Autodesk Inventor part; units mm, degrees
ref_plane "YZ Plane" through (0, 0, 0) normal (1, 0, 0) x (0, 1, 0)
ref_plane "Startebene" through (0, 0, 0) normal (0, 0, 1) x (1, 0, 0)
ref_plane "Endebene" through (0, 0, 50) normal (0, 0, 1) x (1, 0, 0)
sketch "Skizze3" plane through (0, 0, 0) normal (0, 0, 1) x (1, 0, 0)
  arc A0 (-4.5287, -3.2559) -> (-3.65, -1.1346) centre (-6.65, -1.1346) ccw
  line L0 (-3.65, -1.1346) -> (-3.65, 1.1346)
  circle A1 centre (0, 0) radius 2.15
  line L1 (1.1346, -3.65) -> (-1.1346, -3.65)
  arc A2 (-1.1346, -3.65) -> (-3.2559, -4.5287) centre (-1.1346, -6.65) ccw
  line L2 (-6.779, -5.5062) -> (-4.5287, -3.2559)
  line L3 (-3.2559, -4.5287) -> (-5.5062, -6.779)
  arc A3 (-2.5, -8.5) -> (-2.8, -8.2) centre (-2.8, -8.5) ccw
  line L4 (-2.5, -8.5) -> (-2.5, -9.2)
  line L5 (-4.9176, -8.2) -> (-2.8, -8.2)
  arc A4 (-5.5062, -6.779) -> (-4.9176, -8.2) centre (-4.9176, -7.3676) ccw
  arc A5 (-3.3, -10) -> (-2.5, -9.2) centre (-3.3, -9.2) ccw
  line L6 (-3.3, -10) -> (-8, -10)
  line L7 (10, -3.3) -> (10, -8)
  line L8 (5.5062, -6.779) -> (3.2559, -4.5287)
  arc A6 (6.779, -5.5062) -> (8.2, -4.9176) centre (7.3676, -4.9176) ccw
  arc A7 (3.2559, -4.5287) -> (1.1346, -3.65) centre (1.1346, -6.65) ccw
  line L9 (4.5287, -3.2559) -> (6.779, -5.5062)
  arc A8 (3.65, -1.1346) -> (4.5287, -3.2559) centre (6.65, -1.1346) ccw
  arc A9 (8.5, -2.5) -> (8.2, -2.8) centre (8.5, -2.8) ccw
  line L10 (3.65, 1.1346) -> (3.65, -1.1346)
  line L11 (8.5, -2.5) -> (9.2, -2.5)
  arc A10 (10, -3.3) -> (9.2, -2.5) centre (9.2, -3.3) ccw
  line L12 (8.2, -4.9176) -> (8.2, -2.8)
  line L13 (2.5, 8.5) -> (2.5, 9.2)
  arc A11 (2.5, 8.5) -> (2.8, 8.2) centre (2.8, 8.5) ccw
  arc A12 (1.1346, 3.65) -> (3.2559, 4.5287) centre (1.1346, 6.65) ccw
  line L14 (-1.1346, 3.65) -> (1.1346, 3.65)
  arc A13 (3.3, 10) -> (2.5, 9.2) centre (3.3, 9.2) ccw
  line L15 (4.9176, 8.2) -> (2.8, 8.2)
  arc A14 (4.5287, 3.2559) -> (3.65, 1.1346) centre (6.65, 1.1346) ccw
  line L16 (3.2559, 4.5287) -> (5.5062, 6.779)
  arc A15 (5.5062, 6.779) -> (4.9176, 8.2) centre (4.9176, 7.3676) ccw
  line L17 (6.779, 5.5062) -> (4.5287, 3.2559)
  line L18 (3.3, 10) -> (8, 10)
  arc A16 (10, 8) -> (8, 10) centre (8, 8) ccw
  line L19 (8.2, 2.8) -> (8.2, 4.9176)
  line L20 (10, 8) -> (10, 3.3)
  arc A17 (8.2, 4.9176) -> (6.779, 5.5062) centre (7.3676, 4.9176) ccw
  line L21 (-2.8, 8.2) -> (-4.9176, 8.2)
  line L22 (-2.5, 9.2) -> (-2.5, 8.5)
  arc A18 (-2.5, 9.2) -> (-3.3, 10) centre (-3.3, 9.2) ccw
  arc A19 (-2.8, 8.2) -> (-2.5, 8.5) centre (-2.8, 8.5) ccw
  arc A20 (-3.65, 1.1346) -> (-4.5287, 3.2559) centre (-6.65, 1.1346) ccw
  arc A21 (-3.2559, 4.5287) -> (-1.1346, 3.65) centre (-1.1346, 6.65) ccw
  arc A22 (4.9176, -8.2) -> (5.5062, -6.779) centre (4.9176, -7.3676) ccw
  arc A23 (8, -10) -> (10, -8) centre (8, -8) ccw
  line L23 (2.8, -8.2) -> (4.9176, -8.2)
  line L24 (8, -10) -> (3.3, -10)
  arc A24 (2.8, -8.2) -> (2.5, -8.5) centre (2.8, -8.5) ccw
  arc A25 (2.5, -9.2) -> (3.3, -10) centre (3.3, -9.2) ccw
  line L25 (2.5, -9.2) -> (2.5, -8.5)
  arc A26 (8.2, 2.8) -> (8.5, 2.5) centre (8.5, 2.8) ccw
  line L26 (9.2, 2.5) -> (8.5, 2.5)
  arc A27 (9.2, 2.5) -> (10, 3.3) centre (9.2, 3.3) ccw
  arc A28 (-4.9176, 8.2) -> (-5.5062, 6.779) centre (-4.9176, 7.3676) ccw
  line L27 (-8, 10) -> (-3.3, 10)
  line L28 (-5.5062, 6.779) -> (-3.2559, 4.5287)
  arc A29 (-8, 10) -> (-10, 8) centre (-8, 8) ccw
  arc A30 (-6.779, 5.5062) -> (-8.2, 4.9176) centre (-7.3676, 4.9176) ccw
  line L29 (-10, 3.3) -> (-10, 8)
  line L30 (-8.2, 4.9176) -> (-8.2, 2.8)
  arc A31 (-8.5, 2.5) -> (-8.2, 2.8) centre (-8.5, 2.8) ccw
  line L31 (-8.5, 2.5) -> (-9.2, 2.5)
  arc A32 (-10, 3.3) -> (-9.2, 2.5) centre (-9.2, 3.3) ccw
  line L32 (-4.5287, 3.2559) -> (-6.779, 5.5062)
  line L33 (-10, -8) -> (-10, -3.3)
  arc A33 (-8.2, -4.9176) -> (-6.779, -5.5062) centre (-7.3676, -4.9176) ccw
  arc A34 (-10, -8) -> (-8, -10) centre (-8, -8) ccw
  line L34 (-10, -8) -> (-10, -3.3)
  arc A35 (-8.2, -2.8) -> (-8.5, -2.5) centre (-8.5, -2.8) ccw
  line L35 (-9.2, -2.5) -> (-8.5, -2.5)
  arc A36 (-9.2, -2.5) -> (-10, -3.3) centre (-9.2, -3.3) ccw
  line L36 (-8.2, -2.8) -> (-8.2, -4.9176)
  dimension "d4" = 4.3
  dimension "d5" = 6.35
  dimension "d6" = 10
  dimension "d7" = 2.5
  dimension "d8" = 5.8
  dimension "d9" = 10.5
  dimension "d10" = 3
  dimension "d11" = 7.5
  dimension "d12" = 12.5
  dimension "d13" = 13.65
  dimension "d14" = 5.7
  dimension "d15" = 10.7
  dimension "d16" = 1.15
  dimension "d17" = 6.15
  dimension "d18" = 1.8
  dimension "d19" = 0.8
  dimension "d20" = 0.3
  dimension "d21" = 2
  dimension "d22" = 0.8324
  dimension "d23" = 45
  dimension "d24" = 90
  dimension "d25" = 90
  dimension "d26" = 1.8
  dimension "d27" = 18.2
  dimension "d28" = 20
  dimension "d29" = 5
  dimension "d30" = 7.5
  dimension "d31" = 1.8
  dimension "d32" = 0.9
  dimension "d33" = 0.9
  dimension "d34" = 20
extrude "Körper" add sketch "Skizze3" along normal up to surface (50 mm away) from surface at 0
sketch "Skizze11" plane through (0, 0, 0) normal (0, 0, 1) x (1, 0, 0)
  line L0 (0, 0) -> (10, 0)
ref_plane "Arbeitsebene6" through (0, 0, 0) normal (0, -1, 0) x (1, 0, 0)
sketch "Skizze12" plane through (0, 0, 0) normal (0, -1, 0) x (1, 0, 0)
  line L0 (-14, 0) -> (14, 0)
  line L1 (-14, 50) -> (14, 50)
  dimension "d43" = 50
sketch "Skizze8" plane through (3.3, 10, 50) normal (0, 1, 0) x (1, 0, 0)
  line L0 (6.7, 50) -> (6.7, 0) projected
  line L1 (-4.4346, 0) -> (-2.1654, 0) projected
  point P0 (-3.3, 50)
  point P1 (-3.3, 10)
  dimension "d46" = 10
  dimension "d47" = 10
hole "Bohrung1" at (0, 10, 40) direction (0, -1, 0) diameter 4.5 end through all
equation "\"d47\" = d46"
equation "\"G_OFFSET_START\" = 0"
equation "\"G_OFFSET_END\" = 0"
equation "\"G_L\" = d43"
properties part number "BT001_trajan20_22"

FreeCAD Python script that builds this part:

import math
import FreeCAD as App
import Part
import Sketcher
Q = App.Units.Quantity

doc = App.newDocument("Part")
body = doc.addObject("PartDesign::Body", "Body")

sketch1 = doc.addObject("Sketcher::SketchObject", "Sketch")
body.addObject(sketch1)
sketch1.AttachmentSupport = (doc.XY_Plane, [""])
sketch1.MapMode = "FlatFace"
sketch1.addGeometry([
    Part.ArcOfCircle(Part.Circle(App.Vector(-6.65, -1.13, 0), App.Vector(0, 0, 1), 3), math.radians(-45), math.radians(0)),
    Part.LineSegment(App.Vector(-4.53, -3.26, 0), App.Vector(-6.78, -5.51, 0)),
    Part.ArcOfCircle(Part.Circle(App.Vector(-7.37, -4.92, 0), App.Vector(0, 0, 1), 0.83), math.radians(180), math.radians(315)),
    Part.LineSegment(App.Vector(-8.2, -4.92, 0), App.Vector(-8.2, -2.8, 0)),
    Part.ArcOfCircle(Part.Circle(App.Vector(-8.5, -2.8, 0), App.Vector(0, 0, 1), 0.3), math.radians(0), math.radians(90)),
    Part.LineSegment(App.Vector(-8.5, -2.5, 0), App.Vector(-9.2, -2.5, 0)),
    Part.ArcOfCircle(Part.Circle(App.Vector(-9.2, -3.3, 0), App.Vector(0, 0, 1), 0.8), math.radians(90), math.radians(180)),
    Part.LineSegment(App.Vector(-10, -3.3, 0), App.Vector(-10, -8, 0)),
    Part.ArcOfCircle(Part.Circle(App.Vector(-8, -8, 0), App.Vector(0, 0, 1), 2), math.radians(180), math.radians(270)),
    Part.LineSegment(App.Vector(-8, -10, 0), App.Vector(-3.3, -10, 0)),
    Part.ArcOfCircle(Part.Circle(App.Vector(-3.3, -9.2, 0), App.Vector(0, 0, 1), 0.8), math.radians(-90), math.radians(0)),
    Part.LineSegment(App.Vector(-2.5, -9.2, 0), App.Vector(-2.5, -8.5, 0)),
    Part.ArcOfCircle(Part.Circle(App.Vector(-2.8, -8.5, 0), App.Vector(0, 0, 1), 0.3), math.radians(0), math.radians(90)),
    Part.LineSegment(App.Vector(-2.8, -8.2, 0), App.Vector(-4.92, -8.2, 0)),
    Part.ArcOfCircle(Part.Circle(App.Vector(-4.92, -7.37, 0), App.Vector(0, 0, 1), 0.83), math.radians(135), math.radians(270)),
    Part.LineSegment(App.Vector(-5.51, -6.78, 0), App.Vector(-3.26, -4.53, 0)),
    Part.ArcOfCircle(Part.Circle(App.Vector(-1.13, -6.65, 0), App.Vector(0, 0, 1), 3), math.radians(90), math.radians(135)),
    Part.LineSegment(App.Vector(-1.13, -3.65, 0), App.Vector(1.13, -3.65, 0)),
    Part.ArcOfCircle(Part.Circle(App.Vector(1.13, -6.65, 0), App.Vector(0, 0, 1), 3), math.radians(45), math.radians(90)),
    Part.LineSegment(App.Vector(3.26, -4.53, 0), App.Vector(5.51, -6.78, 0)),
    Part.ArcOfCircle(Part.Circle(App.Vector(4.92, -7.37, 0), App.Vector(0, 0, 1), 0.83), math.radians(-90), math.radians(45)),
    Part.LineSegment(App.Vector(4.92, -8.2, 0), App.Vector(2.8, -8.2, 0)),
    Part.ArcOfCircle(Part.Circle(App.Vector(2.8, -8.5, 0), App.Vector(0, 0, 1), 0.3), math.radians(90), math.radians(180)),
    Part.LineSegment(App.Vector(2.5, -8.5, 0), App.Vector(2.5, -9.2, 0)),
    Part.ArcOfCircle(Part.Circle(App.Vector(3.3, -9.2, 0), App.Vector(0, 0, 1), 0.8), math.radians(180), math.radians(270)),
    Part.LineSegment(App.Vector(3.3, -10, 0), App.Vector(8, -10, 0)),
    Part.ArcOfCircle(Part.Circle(App.Vector(8, -8, 0), App.Vector(0, 0, 1), 2), math.radians(-90), math.radians(0)),
    Part.LineSegment(App.Vector(10, -8, 0), App.Vector(10, -3.3, 0)),
    Part.ArcOfCircle(Part.Circle(App.Vector(9.2, -3.3, 0), App.Vector(0, 0, 1), 0.8), math.radians(0), math.radians(90)),
    Part.LineSegment(App.Vector(9.2, -2.5, 0), App.Vector(8.5, -2.5, 0)),
    Part.ArcOfCircle(Part.Circle(App.Vector(8.5, -2.8, 0), App.Vector(0, 0, 1), 0.3), math.radians(90), math.radians(180)),
    Part.LineSegment(App.Vector(8.2, -2.8, 0), App.Vector(8.2, -4.92, 0)),
    Part.ArcOfCircle(Part.Circle(App.Vector(7.37, -4.92, 0), App.Vector(0, 0, 1), 0.83), math.radians(-135), math.radians(0)),
    Part.LineSegment(App.Vector(6.78, -5.51, 0), App.Vector(4.53, -3.26, 0)),
    Part.ArcOfCircle(Part.Circle(App.Vector(6.65, -1.13, 0), App.Vector(0, 0, 1), 3), math.radians(180), math.radians(225)),
    Part.LineSegment(App.Vector(3.65, -1.13, 0), App.Vector(3.65, 1.13, 0)),
    Part.ArcOfCircle(Part.Circle(App.Vector(6.65, 1.13, 0), App.Vector(0, 0, 1), 3), math.radians(135), math.radians(180)),
    Part.LineSegment(App.Vector(4.53, 3.26, 0), App.Vector(6.78, 5.51, 0)),
    Part.ArcOfCircle(Part.Circle(App.Vector(7.37, 4.92, 0), App.Vector(0, 0, 1), 0.83), math.radians(0), math.radians(135)),
    Part.LineSegment(App.Vector(8.2, 4.92, 0), App.Vector(8.2, 2.8, 0)),
    Part.ArcOfCircle(Part.Circle(App.Vector(8.5, 2.8, 0), App.Vector(0, 0, 1), 0.3), math.radians(180), math.radians(270)),
    Part.LineSegment(App.Vector(8.5, 2.5, 0), App.Vector(9.2, 2.5, 0)),
    Part.ArcOfCircle(Part.Circle(App.Vector(9.2, 3.3, 0), App.Vector(0, 0, 1), 0.8), math.radians(-90), math.radians(0)),
    Part.LineSegment(App.Vector(10, 3.3, 0), App.Vector(10, 8, 0)),
    Part.ArcOfCircle(Part.Circle(App.Vector(8, 8, 0), App.Vector(0, 0, 1), 2), math.radians(0), math.radians(90)),
    Part.LineSegment(App.Vector(8, 10, 0), App.Vector(3.3, 10, 0)),
    Part.ArcOfCircle(Part.Circle(App.Vector(3.3, 9.2, 0), App.Vector(0, 0, 1), 0.8), math.radians(90), math.radians(180)),
    Part.LineSegment(App.Vector(2.5, 9.2, 0), App.Vector(2.5, 8.5, 0)),
    Part.ArcOfCircle(Part.Circle(App.Vector(2.8, 8.5, 0), App.Vector(0, 0, 1), 0.3), math.radians(180), math.radians(270)),
    Part.LineSegment(App.Vector(2.8, 8.2, 0), App.Vector(4.92, 8.2, 0)),
    Part.ArcOfCircle(Part.Circle(App.Vector(4.92, 7.37, 0), App.Vector(0, 0, 1), 0.83), math.radians(-45), math.radians(90)),
    Part.LineSegment(App.Vector(5.51, 6.78, 0), App.Vector(3.26, 4.53, 0)),
    Part.ArcOfCircle(Part.Circle(App.Vector(1.13, 6.65, 0), App.Vector(0, 0, 1), 3), math.radians(-90), math.radians(-45)),
    Part.LineSegment(App.Vector(1.13, 3.65, 0), App.Vector(-1.13, 3.65, 0)),
    Part.ArcOfCircle(Part.Circle(App.Vector(-1.13, 6.65, 0), App.Vector(0, 0, 1), 3), math.radians(-135), math.radians(-90)),
    Part.LineSegment(App.Vector(-3.26, 4.53, 0), App.Vector(-5.51, 6.78, 0)),
    Part.ArcOfCircle(Part.Circle(App.Vector(-4.92, 7.37, 0), App.Vector(0, 0, 1), 0.83), math.radians(90), math.radians(225)),
    Part.LineSegment(App.Vector(-4.92, 8.2, 0), App.Vector(-2.8, 8.2, 0)),
    Part.ArcOfCircle(Part.Circle(App.Vector(-2.8, 8.5, 0), App.Vector(0, 0, 1), 0.3), math.radians(-90), math.radians(0)),
    Part.LineSegment(App.Vector(-2.5, 8.5, 0), App.Vector(-2.5, 9.2, 0)),
    Part.ArcOfCircle(Part.Circle(App.Vector(-3.3, 9.2, 0), App.Vector(0, 0, 1), 0.8), math.radians(0), math.radians(90)),
    Part.LineSegment(App.Vector(-3.3, 10, 0), App.Vector(-8, 10, 0)),
    Part.ArcOfCircle(Part.Circle(App.Vector(-8, 8, 0), App.Vector(0, 0, 1), 2), math.radians(90), math.radians(180)),
    Part.LineSegment(App.Vector(-10, 8, 0), App.Vector(-10, 3.3, 0)),
    Part.ArcOfCircle(Part.Circle(App.Vector(-9.2, 3.3, 0), App.Vector(0, 0, 1), 0.8), math.radians(180), math.radians(270)),
    Part.LineSegment(App.Vector(-9.2, 2.5, 0), App.Vector(-8.5, 2.5, 0)),
    Part.ArcOfCircle(Part.Circle(App.Vector(-8.5, 2.8, 0), App.Vector(0, 0, 1), 0.3), math.radians(-90), math.radians(0)),
    Part.LineSegment(App.Vector(-8.2, 2.8, 0), App.Vector(-8.2, 4.92, 0)),
    Part.ArcOfCircle(Part.Circle(App.Vector(-7.37, 4.92, 0), App.Vector(0, 0, 1), 0.83), math.radians(45), math.radians(180)),
    Part.LineSegment(App.Vector(-6.78, 5.51, 0), App.Vector(-4.53, 3.26, 0)),
    Part.ArcOfCircle(Part.Circle(App.Vector(-6.65, 1.13, 0), App.Vector(0, 0, 1), 3), math.radians(0), math.radians(45)),
    Part.LineSegment(App.Vector(-3.65, 1.13, 0), App.Vector(-3.65, -1.13, 0)),
    Part.Circle(App.Vector(0, 0, 0), App.Vector(0, 0, 1), 2.15),
], False)
sketch1.addConstraint([
    Sketcher.Constraint("Tangent", 0, 1, 1, 1),
    Sketcher.Constraint("Tangent", 1, 2, 2, 2),
    Sketcher.Constraint("Tangent", 2, 1, 3, 1),
    Sketcher.Constraint("Tangent", 3, 2, 4, 1),
    Sketcher.Constraint("Tangent", 4, 2, 5, 1),
    Sketcher.Constraint("Tangent", 5, 2, 6, 1),
    Sketcher.Constraint("Tangent", 6, 2, 7, 1),
    Sketcher.Constraint("Tangent", 7, 2, 8, 1),
    Sketcher.Constraint("Tangent", 8, 2, 9, 1),
    Sketcher.Constraint("Tangent", 9, 2, 10, 1),
    Sketcher.Constraint("Tangent", 10, 2, 11, 1),
    Sketcher.Constraint("Tangent", 11, 2, 12, 1),
    Sketcher.Constraint("Tangent", 12, 2, 13, 1),
    Sketcher.Constraint("Tangent", 13, 2, 14, 2),
    Sketcher.Constraint("Tangent", 14, 1, 15, 1),
    Sketcher.Constraint("Tangent", 15, 2, 16, 2),
    Sketcher.Constraint("Tangent", 16, 1, 17, 1),
    Sketcher.Constraint("Tangent", 17, 2, 18, 2),
    Sketcher.Constraint("Tangent", 18, 1, 19, 1),
    Sketcher.Constraint("Tangent", 19, 2, 20, 2),
    Sketcher.Constraint("Tangent", 20, 1, 21, 1),
    Sketcher.Constraint("Tangent", 21, 2, 22, 1),
    Sketcher.Constraint("Tangent", 22, 2, 23, 1),
    Sketcher.Constraint("Tangent", 23, 2, 24, 1),
    Sketcher.Constraint("Tangent", 24, 2, 25, 1),
    Sketcher.Constraint("Tangent", 25, 2, 26, 1),
    Sketcher.Constraint("Tangent", 26, 2, 27, 1),
    Sketcher.Constraint("Tangent", 27, 2, 28, 1),
    Sketcher.Constraint("Tangent", 28, 2, 29, 1),
    Sketcher.Constraint("Tangent", 29, 2, 30, 1),
    Sketcher.Constraint("Tangent", 30, 2, 31, 1),
    Sketcher.Constraint("Tangent", 31, 2, 32, 2),
    Sketcher.Constraint("Tangent", 32, 1, 33, 1),
    Sketcher.Constraint("Tangent", 33, 2, 34, 2),
    Sketcher.Constraint("Tangent", 34, 1, 35, 1),
    Sketcher.Constraint("Tangent", 35, 2, 36, 2),
    Sketcher.Constraint("Tangent", 36, 1, 37, 1),
    Sketcher.Constraint("Tangent", 37, 2, 38, 2),
    Sketcher.Constraint("Tangent", 38, 1, 39, 1),
    Sketcher.Constraint("Tangent", 39, 2, 40, 1),
    Sketcher.Constraint("Tangent", 40, 2, 41, 1),
    Sketcher.Constraint("Tangent", 41, 2, 42, 1),
    Sketcher.Constraint("Tangent", 42, 2, 43, 1),
    Sketcher.Constraint("Tangent", 43, 2, 44, 1),
    Sketcher.Constraint("Tangent", 44, 2, 45, 1),
    Sketcher.Constraint("Tangent", 45, 2, 46, 1),
    Sketcher.Constraint("Tangent", 46, 2, 47, 1),
    Sketcher.Constraint("Tangent", 47, 2, 48, 1),
    Sketcher.Constraint("Tangent", 48, 2, 49, 1),
    Sketcher.Constraint("Tangent", 49, 2, 50, 2),
    Sketcher.Constraint("Tangent", 50, 1, 51, 1),
    Sketcher.Constraint("Tangent", 51, 2, 52, 2),
    Sketcher.Constraint("Tangent", 52, 1, 53, 1),
    Sketcher.Constraint("Tangent", 53, 2, 54, 2),
    Sketcher.Constraint("Tangent", 54, 1, 55, 1),
    Sketcher.Constraint("Tangent", 55, 2, 56, 2),
    Sketcher.Constraint("Tangent", 56, 1, 57, 1),
    Sketcher.Constraint("Tangent", 57, 2, 58, 1),
    Sketcher.Constraint("Tangent", 58, 2, 59, 1),
    Sketcher.Constraint("Tangent", 59, 2, 60, 1),
    Sketcher.Constraint("Tangent", 60, 2, 61, 1),
    Sketcher.Constraint("Tangent", 61, 2, 62, 1),
    Sketcher.Constraint("Tangent", 62, 2, 63, 1),
    Sketcher.Constraint("Tangent", 63, 2, 64, 1),
    Sketcher.Constraint("Tangent", 64, 2, 65, 1),
    Sketcher.Constraint("Tangent", 65, 2, 66, 1),
    Sketcher.Constraint("Tangent", 66, 2, 67, 1),
    Sketcher.Constraint("Tangent", 67, 2, 68, 2),
    Sketcher.Constraint("Tangent", 68, 1, 69, 1),
    Sketcher.Constraint("Tangent", 69, 2, 70, 2),
    Sketcher.Constraint("Tangent", 70, 1, 71, 1),
    Sketcher.Constraint("Tangent", 71, 2, 0, 2),
    Sketcher.Constraint("Vertical", 3),
    Sketcher.Constraint("Horizontal", 5),
    Sketcher.Constraint("Vertical", 7),
    Sketcher.Constraint("Horizontal", 9),
    Sketcher.Constraint("Vertical", 11),
    Sketcher.Constraint("Horizontal", 13),
    Sketcher.Constraint("Horizontal", 17),
    Sketcher.Constraint("Horizontal", 21),
    Sketcher.Constraint("Vertical", 23),
    Sketcher.Constraint("Horizontal", 25),
    Sketcher.Constraint("Vertical", 27),
    Sketcher.Constraint("Horizontal", 29),
    Sketcher.Constraint("Vertical", 31),
    Sketcher.Constraint("Vertical", 35),
    Sketcher.Constraint("Vertical", 39),
    Sketcher.Constraint("Horizontal", 41),
    Sketcher.Constraint("Vertical", 43),
    Sketcher.Constraint("Horizontal", 45),
    Sketcher.Constraint("Vertical", 47),
    Sketcher.Constraint("Horizontal", 49),
    Sketcher.Constraint("Horizontal", 53),
    Sketcher.Constraint("Horizontal", 57),
    Sketcher.Constraint("Vertical", 59),
    Sketcher.Constraint("Horizontal", 61),
    Sketcher.Constraint("Vertical", 63),
    Sketcher.Constraint("Horizontal", 65),
    Sketcher.Constraint("Vertical", 67),
    Sketcher.Constraint("Vertical", 71),
    Sketcher.Constraint("Coincident", 72, 3, -1, 1),
    Sketcher.Constraint("Equal", 6, 10),
    Sketcher.Constraint("Equal", 4, 12),
    Sketcher.Constraint("Equal", 2, 14),
    Sketcher.Constraint("Equal", 0, 16),
    Sketcher.Constraint("Equal", 16, 18),
    Sketcher.Constraint("Equal", 14, 20),
    Sketcher.Constraint("Equal", 12, 22),
    Sketcher.Constraint("Equal", 10, 24),
    Sketcher.Constraint("Equal", 8, 26),
    Sketcher.Constraint("Equal", 24, 28),
    Sketcher.Constraint("Equal", 22, 30),
    Sketcher.Constraint("Equal", 20, 32),
    Sketcher.Constraint("Equal", 18, 34),
    Sketcher.Constraint("Equal", 34, 36),
    Sketcher.Constraint("Equal", 32, 38),
    Sketcher.Constraint("Equal", 30, 40),
    Sketcher.Constraint("Equal", 28, 42),
    Sketcher.Constraint("Equal", 26, 44),
    Sketcher.Constraint("Equal", 42, 46),
    Sketcher.Constraint("Equal", 40, 48),
    Sketcher.Constraint("Equal", 38, 50),
    Sketcher.Constraint("Equal", 36, 52),
    Sketcher.Constraint("Equal", 52, 54),
    Sketcher.Constraint("Equal", 50, 56),
    Sketcher.Constraint("Equal", 48, 58),
    Sketcher.Constraint("Equal", 46, 60),
    Sketcher.Constraint("Equal", 44, 62),
    Sketcher.Constraint("Equal", 60, 64),
    Sketcher.Constraint("Equal", 58, 66),
    Sketcher.Constraint("Equal", 56, 68),
    Sketcher.Constraint("Equal", 54, 70),
    Sketcher.Constraint("Symmetric", 0, 3, 36, 3, -1, 1),
    Sketcher.Constraint("Symmetric", 2, 3, 38, 3, -1, 1),
    Sketcher.Constraint("Symmetric", 6, 3, 42, 3, -1, 1),
    Sketcher.Constraint("Symmetric", 10, 3, 46, 3, -1, 1),
    Sketcher.Constraint("Symmetric", 14, 3, 50, 3, -1, 1),
    Sketcher.Constraint("Symmetric", 16, 3, 52, 3, -1, 1),
    Sketcher.Constraint("Symmetric", 20, 3, 56, 3, -1, 1),
    Sketcher.Constraint("Symmetric", 24, 3, 60, 3, -1, 1),
    Sketcher.Constraint("Symmetric", 28, 3, 64, 3, -1, 1),
    Sketcher.Constraint("Symmetric", 32, 3, 68, 3, -1, 1),
    Sketcher.Constraint("Symmetric", 14, 3, 20, 3, -2),
    Sketcher.Constraint("Symmetric", 10, 3, 24, 3, -2),
    Sketcher.Constraint("Symmetric", 6, 3, 28, 3, -2),
    Sketcher.Constraint("Symmetric", 2, 3, 32, 3, -2),
    Sketcher.Constraint("Parallel", 1, 15),
    Sketcher.Constraint("Perpendicular", 15, 19),
    Sketcher.Constraint("Parallel", 19, 33),
    Sketcher.Constraint("Perpendicular", 51, 55),
    Sketcher.Constraint("Parallel", 55, 69),
    Sketcher.Constraint("Horizontal", 0, 3, 34, 3),
    Sketcher.Constraint("Equal", 57, 3),
    Sketcher.Constraint("Equal", 61, 7),
    Sketcher.Constraint("Equal", 65, 11),
    Sketcher.Constraint("Equal", 53, 35),
    Sketcher.Constraint("Equal", 1, 15),
    Sketcher.Constraint("Radius", 0, Q("3 mm")),
    Sketcher.Constraint("Radius", 8, Q("2 mm")),
    Sketcher.Constraint("Diameter", 72, Q("4.3 mm")),
    Sketcher.Constraint("Radius", 4, Q("0.3 mm")),
    Sketcher.Constraint("Radius", 6, Q("0.8 mm")),
    Sketcher.Constraint("DistanceX", 6, 2, -1, 1, Q("10 mm")),
    Sketcher.Constraint("DistanceY", 4, 2, -1, 1, Q("2.5 mm")),
    Sketcher.Constraint("Radius", 2, Q("0.8324 mm")),
    Sketcher.Constraint("DistanceX", 5, 2, 5, 1, Q("0.7 mm")),
    Sketcher.Constraint("DistanceX", 0, 3, -1, 1, Q("6.65 mm")),
    Sketcher.Constraint("DistanceX", 13, 2, 13, 1, Q("2.1176 mm")),
])
pad1 = doc.addObject("PartDesign::Pad", "Pad")
body.addObject(pad1)
pad1.Profile = sketch1
pad1.Length = 50

sketch2 = doc.addObject("Sketcher::SketchObject", "Sketch001")
body.addObject(sketch2)
sketch2.AttachmentSupport = (doc.XZ_Plane, [""])
sketch2.MapMode = "FlatFace"
sketch2.AttachmentOffset = App.Placement(App.Vector(0, 0, -10), App.Rotation())
sketch2.addGeometry(Part.Circle(App.Vector(0, 40, 0), App.Vector(0, 0, 1), 2.2), False)
sketch2.addConstraint([
    Sketcher.Constraint("PointOnObject", 0, 3, -2),
    Sketcher.Constraint("Diameter", 0, Q("4.5 mm")),
    Sketcher.Constraint("DistanceY", -1, 1, 0, 3, Q("40 mm")),
])
doc.recompute()
hole = doc.addObject("PartDesign::Hole", "Hole")
body.addObject(hole)
hole.Profile = sketch2
hole.ThreadType = "None"
hole.Diameter = 4.5
hole.DepthType = "ThroughAll"
hole.Reversed = True

doc.recompute()
